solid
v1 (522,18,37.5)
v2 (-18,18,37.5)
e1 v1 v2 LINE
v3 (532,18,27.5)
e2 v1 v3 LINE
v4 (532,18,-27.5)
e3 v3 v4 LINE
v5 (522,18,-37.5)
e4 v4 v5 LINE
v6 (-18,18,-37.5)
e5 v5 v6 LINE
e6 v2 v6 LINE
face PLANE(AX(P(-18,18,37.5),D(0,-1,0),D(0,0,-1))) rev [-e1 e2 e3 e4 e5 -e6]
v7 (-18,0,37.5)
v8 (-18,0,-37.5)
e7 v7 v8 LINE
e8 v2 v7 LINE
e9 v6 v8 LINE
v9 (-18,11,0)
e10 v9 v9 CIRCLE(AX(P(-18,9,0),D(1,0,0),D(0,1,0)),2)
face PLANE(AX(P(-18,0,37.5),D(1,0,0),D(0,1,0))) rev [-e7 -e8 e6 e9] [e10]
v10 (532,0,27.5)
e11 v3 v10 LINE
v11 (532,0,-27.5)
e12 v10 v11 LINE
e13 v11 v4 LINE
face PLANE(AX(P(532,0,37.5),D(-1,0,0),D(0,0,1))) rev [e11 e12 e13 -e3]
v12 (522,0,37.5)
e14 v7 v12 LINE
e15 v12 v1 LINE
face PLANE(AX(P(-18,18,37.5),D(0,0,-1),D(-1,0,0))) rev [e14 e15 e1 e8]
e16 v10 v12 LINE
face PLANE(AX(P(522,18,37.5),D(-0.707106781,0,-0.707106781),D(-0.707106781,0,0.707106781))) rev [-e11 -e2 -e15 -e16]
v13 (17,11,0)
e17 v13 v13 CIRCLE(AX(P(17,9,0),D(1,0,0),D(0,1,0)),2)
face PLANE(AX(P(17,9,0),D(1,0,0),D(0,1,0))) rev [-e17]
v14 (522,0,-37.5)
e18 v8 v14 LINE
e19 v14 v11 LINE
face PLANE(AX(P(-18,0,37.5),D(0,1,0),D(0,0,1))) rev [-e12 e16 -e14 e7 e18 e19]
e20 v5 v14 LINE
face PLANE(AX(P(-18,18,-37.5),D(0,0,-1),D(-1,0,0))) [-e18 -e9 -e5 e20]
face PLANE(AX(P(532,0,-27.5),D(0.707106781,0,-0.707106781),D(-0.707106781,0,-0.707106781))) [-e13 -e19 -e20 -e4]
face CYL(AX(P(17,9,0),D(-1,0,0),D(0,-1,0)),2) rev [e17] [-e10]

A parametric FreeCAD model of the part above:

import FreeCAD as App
import Part
import Sketcher

V = App.Vector


def edges_at(feature, points):
    """Names of the edges that pass closest to the given points."""
    edges = feature.Shape.Edges
    near = lambda p: min(range(len(edges)), key=lambda i: edges[i].distToShape(Part.Vertex(*p))[0])
    return sorted({f"Edge{near(p) + 1}" for p in points})

doc = App.newDocument("Part")
body = doc.addObject("PartDesign::Body", "Body")

# Sketch on XY plane
sketch1 = doc.addObject("Sketcher::SketchObject", "Sketch")
body.addObject(sketch1)
sketch1.AttachmentSupport = (doc.XY_Plane, [""])
sketch1.MapMode = "FlatFace"
sketch1.addGeometry([
    Part.LineSegment(V(-18, 18, 0), V(-18, 0, 0)),
    Part.LineSegment(V(-18, 0, 0), V(532, 0, 0)),
    Part.LineSegment(V(532, 0, 0), V(532, 18, 0)),
    Part.LineSegment(V(532, 18, 0), V(-18, 18, 0)),
], False)
sketch1.addConstraint([
    Sketcher.Constraint("Coincident", 0, 2, 1, 1),
    Sketcher.Constraint("Coincident", 1, 2, 2, 1),
    Sketcher.Constraint("Coincident", 2, 2, 3, 1),
    Sketcher.Constraint("Coincident", 3, 2, 0, 1),
    Sketcher.Constraint("Vertical", 0),
    Sketcher.Constraint("Horizontal", 1),
    Sketcher.Constraint("Vertical", 2),
    Sketcher.Constraint("Horizontal", 3),
    Sketcher.Constraint("PointOnObject", 0, 2, -1),
    Sketcher.Constraint("DistanceX", 1, 1, 1, 2, 550.0),
    Sketcher.Constraint("DistanceY", 0, 2, 0, 1, 18.0),
    Sketcher.Constraint("DistanceX", 0, 2, -1, 1, 18.0),
])
pad1 = doc.addObject("PartDesign::Pad", "Pad")
body.addObject(pad1)
pad1.Profile = sketch1
pad1.Length = 75
pad1.Midplane = True
doc.recompute()

chamfer = doc.addObject("PartDesign::Chamfer", "Chamfer")
body.addObject(chamfer)
chamfer.Base = (pad1, edges_at(pad1, [(532, 9, 37.5), (532, 9, -37.5)]))
chamfer.Size = 10

# Sketch on YZ plane
sketch2 = doc.addObject("Sketcher::SketchObject", "Sketch001")
body.addObject(sketch2)
sketch2.AttachmentSupport = (doc.YZ_Plane, [""])
sketch2.MapMode = "FlatFace"
sketch2.AttachmentOffset = App.Placement(V(0, 0, -18), App.Rotation())
sketch2.addGeometry(Part.Circle(V(9, 0, 0), V(0, 0, 1), 2), False)
sketch2.addConstraint([
    Sketcher.Constraint("PointOnObject", 0, 3, -1),
    Sketcher.Constraint("Diameter", 0, 4.0),
    Sketcher.Constraint("DistanceX", -1, 1, 0, 3, 9.0),
])
pocket1 = doc.addObject("PartDesign::Pocket", "Pocket")
body.addObject(pocket1)
pocket1.Profile = sketch2
pocket1.Length = 35
pocket1.Reversed = True

doc.recompute()
